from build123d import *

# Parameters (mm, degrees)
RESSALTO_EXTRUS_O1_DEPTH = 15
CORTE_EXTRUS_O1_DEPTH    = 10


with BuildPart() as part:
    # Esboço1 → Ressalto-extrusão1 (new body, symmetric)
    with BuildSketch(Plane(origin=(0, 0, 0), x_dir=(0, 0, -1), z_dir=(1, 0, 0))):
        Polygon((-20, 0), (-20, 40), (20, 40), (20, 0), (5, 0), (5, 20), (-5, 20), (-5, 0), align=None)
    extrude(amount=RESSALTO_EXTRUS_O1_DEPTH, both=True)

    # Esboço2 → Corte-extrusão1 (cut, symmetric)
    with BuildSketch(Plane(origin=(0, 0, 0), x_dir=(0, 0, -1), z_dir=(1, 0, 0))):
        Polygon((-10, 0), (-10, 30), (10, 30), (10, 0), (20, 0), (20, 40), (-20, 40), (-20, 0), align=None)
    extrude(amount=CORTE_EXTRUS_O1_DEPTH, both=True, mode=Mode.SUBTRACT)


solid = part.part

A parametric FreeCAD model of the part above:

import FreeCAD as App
import Part
import Sketcher
from FreeCAD import Vector
Q = App.Units.Quantity

doc = App.newDocument("Part")
body = doc.addObject("PartDesign::Body", "Body")

# Sketch on YZ plane
sketch1 = doc.addObject("Sketcher::SketchObject", "Sketch")
body.addObject(sketch1)
sketch1.AttachmentSupport = (doc.YZ_Plane, [""])
sketch1.MapMode = "FlatFace"
sketch1.addGeometry(Part.LineSegment(Vector(40, 20, 0), Vector(0, 20, 0)), False)
sketch1.addGeometry(Part.LineSegment(Vector(0, 20, 0), Vector(0, 5, 0)), False)
sketch1.addGeometry(Part.LineSegment(Vector(0, 5, 0), Vector(20, 5, 0)), False)
sketch1.addGeometry(Part.LineSegment(Vector(20, 5, 0), Vector(20, -5, 0)), False)
sketch1.addGeometry(Part.LineSegment(Vector(20, -5, 0), Vector(0, -5, 0)), False)
sketch1.addGeometry(Part.LineSegment(Vector(0, -5, 0), Vector(0, -20, 0)), False)
sketch1.addGeometry(Part.LineSegment(Vector(0, -20, 0), Vector(40, -20, 0)), False)
sketch1.addGeometry(Part.LineSegment(Vector(40, -20, 0), Vector(40, 20, 0)), False)
sketch1.addConstraint(Sketcher.Constraint("Coincident", 0, 2, 1, 1))
sketch1.addConstraint(Sketcher.Constraint("Coincident", 1, 2, 2, 1))
sketch1.addConstraint(Sketcher.Constraint("Coincident", 2, 2, 3, 1))
sketch1.addConstraint(Sketcher.Constraint("Coincident", 3, 2, 4, 1))
sketch1.addConstraint(Sketcher.Constraint("Coincident", 4, 2, 5, 1))
sketch1.addConstraint(Sketcher.Constraint("Coincident", 5, 2, 6, 1))
sketch1.addConstraint(Sketcher.Constraint("Coincident", 6, 2, 7, 1))
sketch1.addConstraint(Sketcher.Constraint("Coincident", 7, 2, 0, 1))
sketch1.addConstraint(Sketcher.Constraint("Horizontal", 0))
sketch1.addConstraint(Sketcher.Constraint("Vertical", 1))
sketch1.addConstraint(Sketcher.Constraint("Horizontal", 2))
sketch1.addConstraint(Sketcher.Constraint("Vertical", 3))
sketch1.addConstraint(Sketcher.Constraint("Horizontal", 4))
sketch1.addConstraint(Sketcher.Constraint("Vertical", 5))
sketch1.addConstraint(Sketcher.Constraint("Horizontal", 6))
sketch1.addConstraint(Sketcher.Constraint("Vertical", 7))
sketch1.addConstraint(Sketcher.Constraint("Symmetric", 1, 2, 4, 2, -1, 1))
sketch1.addConstraint(Sketcher.Constraint("Symmetric", 0, 2, 5, 2, -1))
sketch1.addConstraint(Sketcher.Constraint("Equal", 6, 7))
sketch1.addConstraint(Sketcher.Constraint("DistanceX", 0, 2, 0, 1, Q("40 mm")))
sketch1.addConstraint(Sketcher.Constraint("DistanceX", 2, 1, 2, 2, Q("20 mm")))
sketch1.addConstraint(Sketcher.Constraint("DistanceY", 1, 2, 1, 1, Q("15 mm")))
pad1 = doc.addObject("PartDesign::Pad", "Pad")
body.addObject(pad1)
pad1.Profile = sketch1
pad1.Length = 30
pad1.Midplane = True

# Sketch on YZ plane
sketch2 = doc.addObject("Sketcher::SketchObject", "Sketch001")
body.addObject(sketch2)
sketch2.AttachmentSupport = (doc.YZ_Plane, [""])
sketch2.MapMode = "FlatFace"
sketch2.addGeometry(Part.LineSegment(Vector(0, 10, 0), Vector(30, 10, 0)), False)
sketch2.addGeometry(Part.LineSegment(Vector(30, 10, 0), Vector(30, -10, 0)), False)
sketch2.addGeometry(Part.LineSegment(Vector(30, -10, 0), Vector(0, -10, 0)), False)
sketch2.addGeometry(Part.LineSegment(Vector(0, -10, 0), Vector(0, -20, 0)), False)
sketch2.addGeometry(Part.LineSegment(Vector(0, -20, 0), Vector(40, -20, 0)), False)
sketch2.addGeometry(Part.LineSegment(Vector(40, -20, 0), Vector(40, 20, 0)), False)
sketch2.addGeometry(Part.LineSegment(Vector(40, 20, 0), Vector(0, 20, 0)), False)
sketch2.addGeometry(Part.LineSegment(Vector(0, 20, 0), Vector(0, 10, 0)), False)
sketch2.addConstraint(Sketcher.Constraint("Coincident", 0, 2, 1, 1))
sketch2.addConstraint(Sketcher.Constraint("Coincident", 1, 2, 2, 1))
sketch2.addConstraint(Sketcher.Constraint("Coincident", 2, 2, 3, 1))
sketch2.addConstraint(Sketcher.Constraint("Coincident", 3, 2, 4, 1))
sketch2.addConstraint(Sketcher.Constraint("Coincident", 4, 2, 5, 1))
sketch2.addConstraint(Sketcher.Constraint("Coincident", 5, 2, 6, 1))
sketch2.addConstraint(Sketcher.Constraint("Coincident", 6, 2, 7, 1))
sketch2.addConstraint(Sketcher.Constraint("Coincident", 7, 2, 0, 1))
sketch2.addConstraint(Sketcher.Constraint("Horizontal", 0))
sketch2.addConstraint(Sketcher.Constraint("Vertical", 1))
sketch2.addConstraint(Sketcher.Constraint("Horizontal", 2))
sketch2.addConstraint(Sketcher.Constraint("Vertical", 3))
sketch2.addConstraint(Sketcher.Constraint("Horizontal", 4))
sketch2.addConstraint(Sketcher.Constraint("Vertical", 5))
sketch2.addConstraint(Sketcher.Constraint("Horizontal", 6))
sketch2.addConstraint(Sketcher.Constraint("Vertical", 7))
sketch2.addConstraint(Sketcher.Constraint("Symmetric", 3, 2, 6, 2, -1, 1))
sketch2.addConstraint(Sketcher.Constraint("Symmetric", 2, 2, 7, 2, -1))
sketch2.addConstraint(Sketcher.Constraint("Equal", 6, 5))
sketch2.addConstraint(Sketcher.Constraint("DistanceX", 0, 1, 0, 2, Q("30 mm")))
sketch2.addConstraint(Sketcher.Constraint("DistanceX", 4, 1, 4, 2, Q("40 mm")))
sketch2.addConstraint(Sketcher.Constraint("DistanceY", 1, 2, 1, 1, Q("20 mm")))
pocket1 = doc.addObject("PartDesign::Pocket", "Pocket")
body.addObject(pocket1)
pocket1.Profile = sketch2
pocket1.Length = 20
pocket1.Midplane = True

doc.recompute()
